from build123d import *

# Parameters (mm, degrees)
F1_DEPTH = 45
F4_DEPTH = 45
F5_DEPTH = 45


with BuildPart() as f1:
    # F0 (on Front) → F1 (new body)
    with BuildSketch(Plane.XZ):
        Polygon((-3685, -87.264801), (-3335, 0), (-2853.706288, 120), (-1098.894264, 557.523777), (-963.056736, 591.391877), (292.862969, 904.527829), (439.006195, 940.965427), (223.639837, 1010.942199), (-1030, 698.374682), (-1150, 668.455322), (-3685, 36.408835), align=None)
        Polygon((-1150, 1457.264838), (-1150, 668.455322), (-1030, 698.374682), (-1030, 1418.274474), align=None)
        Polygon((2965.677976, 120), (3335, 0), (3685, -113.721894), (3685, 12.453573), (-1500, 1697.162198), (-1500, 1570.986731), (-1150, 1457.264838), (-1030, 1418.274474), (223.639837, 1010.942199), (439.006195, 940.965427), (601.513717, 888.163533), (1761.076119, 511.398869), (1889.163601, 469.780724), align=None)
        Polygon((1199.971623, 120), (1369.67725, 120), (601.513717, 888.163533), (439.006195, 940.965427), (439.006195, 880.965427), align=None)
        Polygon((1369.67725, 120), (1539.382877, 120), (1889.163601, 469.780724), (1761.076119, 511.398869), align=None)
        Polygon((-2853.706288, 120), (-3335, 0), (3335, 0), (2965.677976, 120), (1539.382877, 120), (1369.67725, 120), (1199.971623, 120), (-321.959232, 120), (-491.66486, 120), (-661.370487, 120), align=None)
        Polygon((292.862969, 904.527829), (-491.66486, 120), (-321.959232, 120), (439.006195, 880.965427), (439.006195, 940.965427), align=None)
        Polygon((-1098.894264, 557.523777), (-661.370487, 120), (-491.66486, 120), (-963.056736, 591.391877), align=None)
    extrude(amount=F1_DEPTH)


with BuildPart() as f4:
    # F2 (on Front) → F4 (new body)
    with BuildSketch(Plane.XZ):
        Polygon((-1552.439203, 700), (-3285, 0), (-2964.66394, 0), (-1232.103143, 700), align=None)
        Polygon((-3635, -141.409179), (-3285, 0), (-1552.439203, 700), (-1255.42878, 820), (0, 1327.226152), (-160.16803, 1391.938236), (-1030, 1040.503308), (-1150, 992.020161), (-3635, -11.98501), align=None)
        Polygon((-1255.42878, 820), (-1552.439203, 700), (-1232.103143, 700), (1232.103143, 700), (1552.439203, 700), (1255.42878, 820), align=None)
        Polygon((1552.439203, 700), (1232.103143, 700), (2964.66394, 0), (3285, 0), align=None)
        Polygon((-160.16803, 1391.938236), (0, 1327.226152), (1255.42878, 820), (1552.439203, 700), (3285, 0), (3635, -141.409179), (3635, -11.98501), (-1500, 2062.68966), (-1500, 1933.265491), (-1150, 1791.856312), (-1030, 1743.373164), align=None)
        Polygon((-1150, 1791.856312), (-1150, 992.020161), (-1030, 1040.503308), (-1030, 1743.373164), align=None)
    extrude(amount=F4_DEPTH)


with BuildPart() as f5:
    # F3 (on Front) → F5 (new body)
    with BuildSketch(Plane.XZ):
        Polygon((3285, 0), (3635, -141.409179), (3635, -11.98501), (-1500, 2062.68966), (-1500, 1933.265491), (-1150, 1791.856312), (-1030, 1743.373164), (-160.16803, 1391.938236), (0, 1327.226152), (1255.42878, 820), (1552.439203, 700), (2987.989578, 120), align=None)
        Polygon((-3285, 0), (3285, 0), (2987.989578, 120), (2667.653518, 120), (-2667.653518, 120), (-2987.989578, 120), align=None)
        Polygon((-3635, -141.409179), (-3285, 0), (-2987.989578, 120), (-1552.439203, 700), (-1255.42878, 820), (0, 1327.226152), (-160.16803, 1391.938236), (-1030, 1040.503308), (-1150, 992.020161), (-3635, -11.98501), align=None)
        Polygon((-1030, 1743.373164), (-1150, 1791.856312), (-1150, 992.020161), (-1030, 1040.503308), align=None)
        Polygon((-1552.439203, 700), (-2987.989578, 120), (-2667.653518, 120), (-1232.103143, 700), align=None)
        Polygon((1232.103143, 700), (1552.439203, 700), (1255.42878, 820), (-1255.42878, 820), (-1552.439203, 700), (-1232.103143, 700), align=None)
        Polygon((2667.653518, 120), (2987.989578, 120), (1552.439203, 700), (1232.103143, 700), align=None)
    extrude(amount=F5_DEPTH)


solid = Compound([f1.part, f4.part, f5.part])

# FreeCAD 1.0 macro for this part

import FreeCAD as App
import Part
import Sketcher

V = App.Vector
Q = App.Units.Quantity


def add_polygon(sketch, points):
    """Adds a closed chain of lines whose ends are joined by coincident constraints."""
    first, n = sketch.GeometryCount, len(points)
    for a, b in zip(points, points[1:] + points[:1]):
        sketch.addGeometry(Part.LineSegment(App.Vector(*a, 0), App.Vector(*b, 0)), False)
    for i in range(n):
        sketch.addConstraint(Sketcher.Constraint("Coincident", first + i, 2, first + (i + 1) % n, 1))

doc = App.newDocument("Part")
params = doc.addObject("Spreadsheet::Sheet", "Params")
for row, (alias, value) in enumerate([
    ("sketch1_width", "6670 mm"),
    ("pad1_length", "45 mm"),
    ("pad2_length", "45 mm"),
    ("sketch3_width", "6570 mm"),
    ("pad3_length", "45 mm"),
], start=1):
    params.set(f"A{row}", alias)
    params.set(f"B{row}", "=" + value)
    params.setAlias(f"B{row}", alias)

body = doc.addObject("PartDesign::Body", "Body")

# Sketch on XZ plane
sketch1 = doc.addObject("Sketcher::SketchObject", "Sketch")
body.addObject(sketch1)
sketch1.AttachmentSupport = (doc.XZ_Plane, [""])
sketch1.MapMode = "FlatFace"
add_polygon(sketch1, [(-3685, -87), (-3335, 0), (3335, 0), (3685, -114), (3685, 12), (-1500, 1697), (-1500, 1571), (-1150, 1457), (-1150, 668), (-3685, 36)])  # lines 0-9
add_polygon(sketch1, [(439, 881), (1200, 120), (-322, 120)])  # lines 10-12
add_polygon(sketch1, [(-661, 120), (-2854, 120), (-1099, 558)])  # lines 13-15
add_polygon(sketch1, [(-963, 591), (293, 905), (-492, 120)])  # lines 16-18
add_polygon(sketch1, [(1889, 470), (2966, 120), (1539, 120)])  # lines 19-21
add_polygon(sketch1, [(1761, 511), (1370, 120), (602, 888)])  # lines 22-24
add_polygon(sketch1, [(224, 1011), (-1030, 698), (-1030, 1418)])  # lines 25-27
sketch1.addConstraint([
    Sketcher.Constraint("Horizontal", 1),
    Sketcher.Constraint("Vertical", 3),
    Sketcher.Constraint("Vertical", 5),
    Sketcher.Constraint("Vertical", 7),
    Sketcher.Constraint("Vertical", 9),
    Sketcher.Constraint("Horizontal", 11),
    Sketcher.Constraint("Horizontal", 13),
    Sketcher.Constraint("Horizontal", 20),
    Sketcher.Constraint("Vertical", 26),
    Sketcher.Constraint("Symmetric", 0, 2, 1, 2, -1, 1),
    Sketcher.Constraint("Parallel", 2, 4),
    Sketcher.Constraint("Parallel", 4, 6),
    Sketcher.Constraint("Parallel", 0, 8),
    Sketcher.Constraint("Perpendicular", 10, 12),
    Sketcher.Constraint("Parallel", 8, 14),
    Sketcher.Constraint("Perpendicular", 12, 15),
    Sketcher.Constraint("Parallel", 14, 16),
    Sketcher.Constraint("Perpendicular", 15, 17),
    Sketcher.Constraint("Perpendicular", 17, 18),
    Sketcher.Constraint("Parallel", 6, 19),
    Sketcher.Constraint("Perpendicular", 18, 21),
    Sketcher.Constraint("Parallel", 21, 22),
    Sketcher.Constraint("Perpendicular", 22, 23),
    Sketcher.Constraint("Parallel", 19, 24),
    Sketcher.Constraint("Parallel", 16, 25),
    Sketcher.Constraint("Parallel", 24, 27),
    Sketcher.Constraint("Horizontal", 11, 2, 13, 2),
    Sketcher.Constraint("Horizontal", 15, 2, 17, 2),
    Sketcher.Constraint("Horizontal", 17, 2, 19, 2),
    Sketcher.Constraint("Horizontal", 20, 2, 22, 2),
    Sketcher.Constraint("Equal", 3, 5),
    Sketcher.Constraint("Equal", 2, 6),
    Sketcher.Constraint("Equal", 10, 12),
    Sketcher.Constraint("DistanceX", 1, 1, 1, 2, Q("6670 mm")),
    Sketcher.Constraint("Angle", 0, Q("14 deg")),
    Sketcher.Constraint("Angle", 2, Q("-18 deg")),
    Sketcher.Constraint("DistanceX", -1, 1, 2, 2, Q("3685 mm")),
    Sketcher.Constraint("DistanceX", 4, 2, -1, 1, Q("1500 mm")),
    Sketcher.Constraint("DistanceX", 8, 2, -1, 1, Q("3685 mm")),
    Sketcher.Constraint("DistanceY", -1, 1, 10, 2, Q("120 mm")),
    Sketcher.Constraint("DistanceX", 25, 2, -1, 1, Q("1030 mm")),
    Sketcher.Constraint("DistanceX", 13, 2, 13, 1, Q("2192.335801 mm")),
    Sketcher.Constraint("DistanceX", 20, 2, 20, 1, Q("1426.295099 mm")),
    Sketcher.Constraint("DistanceY", 9, 2, 4, 2, Q("1784.426999 mm")),
    Sketcher.Constraint("DistanceY", 26, 1, 26, 2, Q("719.899792 mm")),
    Sketcher.Constraint("DistanceX", -1, 1, 21, 2, Q("1889.163601 mm")),
    Sketcher.Constraint("DistanceY", -1, 1, 27, 2, Q("1010.942199 mm")),
    Sketcher.Constraint("DistanceX", 11, 2, 16, 2, Q("614.822201 mm")),
    Sketcher.Constraint("DistanceY", 14, 2, 18, 2, Q("33.8681 mm")),
    Sketcher.Constraint("DistanceX", 23, 2, 24, 2, Q("1159.562402 mm")),
    Sketcher.Constraint("Distance", 10, Q("1076.167628 mm")),
    Sketcher.Constraint("DistanceY", 7, 2, 7, 1, Q("788.809516 mm")),
    Sketcher.Constraint("DistanceX", 11, 2, -1, 1, Q("321.959232 mm")),
    Sketcher.Constraint("DistanceX", -1, 1, 22, 2, Q("1369.67725 mm")),
    Sketcher.Constraint("DistanceX", 15, 2, 12, 2, Q("1100.376682 mm")),
])
sketch1.setExpression("Constraints[61]", "Params.sketch1_width")
pad1 = doc.addObject("PartDesign::Pad", "Pad")
body.addObject(pad1)
pad1.Profile = sketch1
pad1.setExpression("Length", "Params.pad1_length")
body2 = doc.addObject("PartDesign::Body", "Body001")

# Sketch on XZ plane
sketch2 = doc.addObject("Sketcher::SketchObject", "Sketch001")
body2.addObject(sketch2)
sketch2.AttachmentSupport = (doc.getObject("XZ_Plane001"), [""])
sketch2.MapMode = "FlatFace"
add_polygon(sketch2, [(-3285, 0), (-2965, 0), (-1232, 700), (1232, 700), (2965, 0), (3285, 0), (3635, -141), (3635, -12), (-1500, 2063), (-1500, 1933), (-1150, 1792), (-1150, 992), (-3635, -12), (-3635, -141)])  # lines 0-13
add_polygon(sketch2, [(-1030, 1743), (-160, 1392), (-1030, 1041)])  # lines 14-16
add_polygon(sketch2, [(1255, 820), (-1255, 820), (0, 1327)])  # lines 17-19
sketch2.addConstraint([
    Sketcher.Constraint("Horizontal", 0),
    Sketcher.Constraint("Horizontal", 2),
    Sketcher.Constraint("Horizontal", 4),
    Sketcher.Constraint("Vertical", 6),
    Sketcher.Constraint("Vertical", 8),
    Sketcher.Constraint("Vertical", 10),
    Sketcher.Constraint("Vertical", 12),
    Sketcher.Constraint("Vertical", 16),
    Sketcher.Constraint("Horizontal", 17),
    Sketcher.Constraint("Symmetric", 0, 2, 3, 2, -1, 1),
    Sketcher.Constraint("Symmetric", 6, 2, 11, 2, -2),
    Sketcher.Constraint("Symmetric", 4, 2, 13, 2, -2),
    Sketcher.Constraint("PointOnObject", 18, 2, -2),
    Sketcher.Constraint("Parallel", 3, 5),
    Sketcher.Constraint("Parallel", 5, 7),
    Sketcher.Constraint("Parallel", 7, 9),
    Sketcher.Constraint("Parallel", 1, 11),
    Sketcher.Constraint("Parallel", 11, 13),
    Sketcher.Constraint("Parallel", 9, 14),
    Sketcher.Constraint("Parallel", 13, 15),
    Sketcher.Constraint("Parallel", 15, 18),
    Sketcher.Constraint("Parallel", 14, 19),
    Sketcher.Constraint("Horizontal", 5, 2, 12, 2),
    Sketcher.Constraint("Equal", 6, 8),
    Sketcher.Constraint("Equal", 5, 9),
    Sketcher.Constraint("Angle", 1, Q("22 deg")),
    Sketcher.Constraint("DistanceY", -1, 1, 1, 2, Q("700 mm")),
    Sketcher.Constraint("DistanceX", -1, 1, 4, 2, Q("3285 mm")),
    Sketcher.Constraint("DistanceX", -1, 1, 5, 2, Q("3635 mm")),
    Sketcher.Constraint("DistanceX", 7, 2, -1, 1, Q("1500 mm")),
    Sketcher.Constraint("DistanceX", 15, 2, -1, 1, Q("1030 mm")),
    Sketcher.Constraint("DistanceY", -1, 1, 17, 2, Q("820 mm")),
    Sketcher.Constraint("Distance", 14, Q("938.144 mm")),
    Sketcher.Constraint("DistanceX", 0, 1, 0, 2, Q("320.33606 mm")),
    Sketcher.Constraint("DistanceX", 17, 2, 17, 1, Q("2510.85756 mm")),
    Sketcher.Constraint("DistanceY", 6, 1, 6, 2, Q("129.424169 mm")),
    Sketcher.Constraint("DistanceY", -1, 1, 15, 2, Q("1040.503308 mm")),
])
pad2 = doc.addObject("PartDesign::Pad", "Pad001")
body2.addObject(pad2)
pad2.Profile = sketch2
pad2.setExpression("Length", "Params.pad2_length")
body3 = doc.addObject("PartDesign::Body", "Body002")

# Sketch on XZ plane
sketch3 = doc.addObject("Sketcher::SketchObject", "Sketch002")
body3.addObject(sketch3)
sketch3.AttachmentSupport = (doc.getObject("XZ_Plane002"), [""])
sketch3.MapMode = "FlatFace"
add_polygon(sketch3, [(3285, 0), (3635, -141), (3635, -12), (-1500, 2063), (-1500, 1933), (-1150, 1792), (-1150, 992), (-3635, -12), (-3635, -141), (-3285, 0)])  # lines 0-9
add_polygon(sketch3, [(-1030, 1743), (-160, 1392), (-1030, 1041)])  # lines 10-12
add_polygon(sketch3, [(0, 1327), (1255, 820), (-1255, 820)])  # lines 13-15
add_polygon(sketch3, [(2668, 120), (-2668, 120), (-1232, 700), (1232, 700)])  # lines 16-19
sketch3.addConstraint([
    Sketcher.Constraint("Vertical", 1),
    Sketcher.Constraint("Vertical", 3),
    Sketcher.Constraint("Vertical", 5),
    Sketcher.Constraint("Vertical", 7),
    Sketcher.Constraint("Horizontal", 9),
    Sketcher.Constraint("Vertical", 12),
    Sketcher.Constraint("Horizontal", 14),
    Sketcher.Constraint("Horizontal", 16),
    Sketcher.Constraint("Horizontal", 18),
    Sketcher.Constraint("Symmetric", 8, 2, 9, 2, -1, 1),
    Sketcher.Constraint("Symmetric", 1, 2, 6, 2, -2),
    Sketcher.Constraint("PointOnObject", 15, 2, -2),
    Sketcher.Constraint("Parallel", 0, 2),
    Sketcher.Constraint("Parallel", 2, 4),
    Sketcher.Constraint("Parallel", 6, 8),
    Sketcher.Constraint("Parallel", 4, 10),
    Sketcher.Constraint("Parallel", 8, 11),
    Sketcher.Constraint("Parallel", 10, 13),
    Sketcher.Constraint("Parallel", 11, 15),
    Sketcher.Constraint("Parallel", 15, 17),
    Sketcher.Constraint("Parallel", 13, 19),
    Sketcher.Constraint("Horizontal", 0, 2, 7, 2),
    Sketcher.Constraint("Equal", 1, 3),
    Sketcher.Constraint("Equal", 0, 4),
    Sketcher.Constraint("DistanceX", 9, 1, 9, 2, Q("6570 mm")),
    Sketcher.Constraint("Angle", 0, Q("-22 deg")),
    Sketcher.Constraint("DistanceX", -1, 1, 0, 2, Q("3635 mm")),
    Sketcher.Constraint("DistanceX", 2, 2, -1, 1, Q("1500 mm")),
    Sketcher.Constraint("DistanceX", 11, 2, -1, 1, Q("1030 mm")),
    Sketcher.Constraint("DistanceY", -1, 1, 13, 2, Q("820 mm")),
    Sketcher.Constraint("DistanceY", -1, 1, 16, 2, Q("120 mm")),
    Sketcher.Constraint("DistanceY", -1, 1, 17, 2, Q("700 mm")),
    Sketcher.Constraint("Distance", 10, Q("938.144 mm")),
    Sketcher.Constraint("DistanceX", 14, 2, 14, 1, Q("2510.85756 mm")),
    Sketcher.Constraint("DistanceY", 1, 1, 1, 2, Q("129.424169 mm")),
    Sketcher.Constraint("DistanceX", 16, 2, 16, 1, Q("5335.307036 mm")),
    Sketcher.Constraint("DistanceY", -1, 1, 11, 2, Q("1040.503308 mm")),
    Sketcher.Constraint("DistanceX", 16, 2, -1, 1, Q("2667.653518 mm")),
])
sketch3.setExpression("Constraints[44]", "Params.sketch3_width")
pad3 = doc.addObject("PartDesign::Pad", "Pad002")
body3.addObject(pad3)
pad3.Profile = sketch3
pad3.setExpression("Length", "Params.pad3_length")

doc.recompute()
